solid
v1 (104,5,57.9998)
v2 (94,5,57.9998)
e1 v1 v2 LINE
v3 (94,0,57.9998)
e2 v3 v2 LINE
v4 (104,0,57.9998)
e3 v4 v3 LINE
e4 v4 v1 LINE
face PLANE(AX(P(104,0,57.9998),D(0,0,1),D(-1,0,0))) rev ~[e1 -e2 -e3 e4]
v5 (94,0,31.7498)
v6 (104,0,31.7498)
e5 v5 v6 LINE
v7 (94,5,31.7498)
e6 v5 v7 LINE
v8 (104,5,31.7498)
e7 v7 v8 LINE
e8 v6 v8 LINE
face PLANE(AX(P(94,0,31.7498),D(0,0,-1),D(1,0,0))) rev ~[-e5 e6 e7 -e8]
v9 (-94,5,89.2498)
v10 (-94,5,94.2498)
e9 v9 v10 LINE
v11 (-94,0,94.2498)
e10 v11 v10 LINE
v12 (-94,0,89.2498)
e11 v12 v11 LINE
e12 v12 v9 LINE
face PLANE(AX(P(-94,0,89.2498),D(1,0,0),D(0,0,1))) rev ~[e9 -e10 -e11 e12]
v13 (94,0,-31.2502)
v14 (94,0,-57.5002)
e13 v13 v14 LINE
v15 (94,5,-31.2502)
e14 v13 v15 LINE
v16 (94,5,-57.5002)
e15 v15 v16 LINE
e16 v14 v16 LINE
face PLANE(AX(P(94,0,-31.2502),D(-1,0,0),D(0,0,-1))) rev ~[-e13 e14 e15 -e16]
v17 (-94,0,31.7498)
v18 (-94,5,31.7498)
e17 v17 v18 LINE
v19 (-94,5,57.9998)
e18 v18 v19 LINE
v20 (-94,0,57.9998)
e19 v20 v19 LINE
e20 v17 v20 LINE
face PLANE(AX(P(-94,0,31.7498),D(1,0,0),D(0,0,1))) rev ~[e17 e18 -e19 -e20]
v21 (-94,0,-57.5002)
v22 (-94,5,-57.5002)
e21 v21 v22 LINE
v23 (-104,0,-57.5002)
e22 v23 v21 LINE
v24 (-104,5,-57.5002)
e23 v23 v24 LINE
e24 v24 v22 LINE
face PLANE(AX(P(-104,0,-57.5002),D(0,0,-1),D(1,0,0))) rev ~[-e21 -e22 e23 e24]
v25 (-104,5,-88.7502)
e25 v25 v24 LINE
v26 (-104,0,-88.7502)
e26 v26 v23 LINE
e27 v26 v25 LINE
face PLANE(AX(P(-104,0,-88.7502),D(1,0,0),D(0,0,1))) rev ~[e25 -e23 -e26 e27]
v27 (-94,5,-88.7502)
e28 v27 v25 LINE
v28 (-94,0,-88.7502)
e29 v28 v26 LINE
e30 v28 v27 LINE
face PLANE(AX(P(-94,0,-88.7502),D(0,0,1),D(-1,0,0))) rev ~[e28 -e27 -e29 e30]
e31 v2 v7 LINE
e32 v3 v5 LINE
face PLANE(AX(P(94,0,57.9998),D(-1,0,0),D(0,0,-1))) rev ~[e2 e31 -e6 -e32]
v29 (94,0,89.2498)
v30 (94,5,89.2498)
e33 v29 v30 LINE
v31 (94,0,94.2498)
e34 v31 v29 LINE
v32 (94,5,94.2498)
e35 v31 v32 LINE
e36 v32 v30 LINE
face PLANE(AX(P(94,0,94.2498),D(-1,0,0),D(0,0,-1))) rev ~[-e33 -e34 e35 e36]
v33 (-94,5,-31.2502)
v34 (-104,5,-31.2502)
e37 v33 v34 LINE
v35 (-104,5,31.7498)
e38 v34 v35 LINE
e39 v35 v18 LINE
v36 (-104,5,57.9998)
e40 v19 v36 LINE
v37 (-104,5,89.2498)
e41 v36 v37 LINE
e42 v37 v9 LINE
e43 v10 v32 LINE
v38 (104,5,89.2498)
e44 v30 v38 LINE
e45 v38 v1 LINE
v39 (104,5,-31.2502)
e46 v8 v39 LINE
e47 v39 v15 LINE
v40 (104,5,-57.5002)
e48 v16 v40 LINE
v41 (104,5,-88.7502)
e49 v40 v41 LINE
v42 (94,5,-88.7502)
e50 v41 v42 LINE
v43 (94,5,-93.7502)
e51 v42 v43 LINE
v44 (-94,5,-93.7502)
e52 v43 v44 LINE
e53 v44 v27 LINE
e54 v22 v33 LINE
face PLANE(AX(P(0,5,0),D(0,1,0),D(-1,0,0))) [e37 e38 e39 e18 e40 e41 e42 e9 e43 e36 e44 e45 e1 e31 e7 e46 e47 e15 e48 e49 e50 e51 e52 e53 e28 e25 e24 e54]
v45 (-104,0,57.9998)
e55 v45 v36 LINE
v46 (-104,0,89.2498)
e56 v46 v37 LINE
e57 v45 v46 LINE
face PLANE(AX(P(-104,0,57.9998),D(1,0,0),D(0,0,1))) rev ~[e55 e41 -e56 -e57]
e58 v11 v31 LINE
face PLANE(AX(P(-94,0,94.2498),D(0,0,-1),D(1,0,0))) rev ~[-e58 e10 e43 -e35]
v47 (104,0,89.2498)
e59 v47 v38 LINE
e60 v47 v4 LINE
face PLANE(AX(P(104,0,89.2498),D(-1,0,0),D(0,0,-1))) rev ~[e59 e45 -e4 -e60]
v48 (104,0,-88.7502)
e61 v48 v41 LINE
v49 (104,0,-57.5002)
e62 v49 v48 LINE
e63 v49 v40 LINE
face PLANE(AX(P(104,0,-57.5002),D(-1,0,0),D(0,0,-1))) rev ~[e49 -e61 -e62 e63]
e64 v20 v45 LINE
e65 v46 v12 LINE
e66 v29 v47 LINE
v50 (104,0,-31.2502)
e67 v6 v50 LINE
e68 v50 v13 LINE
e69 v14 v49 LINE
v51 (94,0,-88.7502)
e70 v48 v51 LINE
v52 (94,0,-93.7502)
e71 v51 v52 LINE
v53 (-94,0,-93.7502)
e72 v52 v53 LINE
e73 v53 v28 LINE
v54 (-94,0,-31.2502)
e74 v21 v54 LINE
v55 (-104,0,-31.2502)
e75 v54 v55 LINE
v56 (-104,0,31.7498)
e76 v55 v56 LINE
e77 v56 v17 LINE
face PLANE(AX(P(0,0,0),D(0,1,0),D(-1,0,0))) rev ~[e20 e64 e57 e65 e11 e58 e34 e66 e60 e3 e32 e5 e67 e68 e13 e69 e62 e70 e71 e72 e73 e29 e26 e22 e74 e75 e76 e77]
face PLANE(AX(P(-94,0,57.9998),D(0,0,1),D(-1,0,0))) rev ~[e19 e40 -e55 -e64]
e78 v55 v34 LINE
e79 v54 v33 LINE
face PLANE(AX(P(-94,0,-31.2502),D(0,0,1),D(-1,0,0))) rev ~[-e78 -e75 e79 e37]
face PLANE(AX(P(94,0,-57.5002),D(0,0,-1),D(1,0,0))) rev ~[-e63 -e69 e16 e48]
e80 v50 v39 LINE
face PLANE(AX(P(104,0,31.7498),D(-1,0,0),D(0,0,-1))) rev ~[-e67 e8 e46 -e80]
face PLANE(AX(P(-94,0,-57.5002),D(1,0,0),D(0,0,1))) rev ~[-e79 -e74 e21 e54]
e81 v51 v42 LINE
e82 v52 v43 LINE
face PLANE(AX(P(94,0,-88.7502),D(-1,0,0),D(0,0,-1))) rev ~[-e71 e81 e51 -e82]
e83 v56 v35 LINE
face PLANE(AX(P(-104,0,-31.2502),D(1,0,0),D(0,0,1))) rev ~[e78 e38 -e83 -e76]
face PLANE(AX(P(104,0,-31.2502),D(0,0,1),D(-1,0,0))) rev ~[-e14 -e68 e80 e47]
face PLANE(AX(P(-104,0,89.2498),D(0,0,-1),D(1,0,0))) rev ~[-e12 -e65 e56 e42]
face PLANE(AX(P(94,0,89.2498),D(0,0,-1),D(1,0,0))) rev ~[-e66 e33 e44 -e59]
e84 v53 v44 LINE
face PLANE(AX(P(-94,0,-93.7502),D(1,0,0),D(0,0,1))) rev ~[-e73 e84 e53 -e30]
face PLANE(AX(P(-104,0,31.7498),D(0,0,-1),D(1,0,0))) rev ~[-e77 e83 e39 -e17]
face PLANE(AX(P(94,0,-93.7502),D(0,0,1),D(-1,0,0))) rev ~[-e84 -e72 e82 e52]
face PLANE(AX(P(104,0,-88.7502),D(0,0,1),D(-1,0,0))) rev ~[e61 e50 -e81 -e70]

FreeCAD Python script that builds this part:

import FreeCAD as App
import Part
import Sketcher

V = App.Vector
Q = App.Units.Quantity


def add_polygon(sketch, points):
    """Adds a closed chain of lines whose ends are joined by coincident constraints."""
    first, n = sketch.GeometryCount, len(points)
    for a, b in zip(points, points[1:] + points[:1]):
        sketch.addGeometry(Part.LineSegment(App.Vector(*a, 0), App.Vector(*b, 0)), False)
    for i in range(n):
        sketch.addConstraint(Sketcher.Constraint("Coincident", first + i, 2, first + (i + 1) % n, 1))

doc = App.newDocument("Part")
body = doc.addObject("PartDesign::Body", "Body")

# Sketch on XZ plane
sketch1 = doc.addObject("Sketcher::SketchObject", "Sketch")
body.addObject(sketch1)
sketch1.AttachmentSupport = (doc.XZ_Plane, [""])
sketch1.MapMode = "FlatFace"
add_polygon(sketch1, [(104, -89), (94, -89), (94, -94), (-94, -94), (-94, -89), (-104, -89), (-104, -58), (-94, -58), (-94, -31), (-104, -31), (-104, 32), (-94, 32), (-94, 58), (-104, 58), (-104, 89), (-94, 89), (-94, 94), (94, 94), (94, 89), (104, 89), (104, 58), (94, 58), (94, 32), (104, 32), (104, -31), (94, -31), (94, -58), (104, -58)])  # lines 0-27
sketch1.addConstraint(Sketcher.Constraint("Horizontal", 0))
sketch1.addConstraint(Sketcher.Constraint("Vertical", 1))
sketch1.addConstraint(Sketcher.Constraint("Horizontal", 2))
sketch1.addConstraint(Sketcher.Constraint("Vertical", 3))
sketch1.addConstraint(Sketcher.Constraint("Horizontal", 4))
sketch1.addConstraint(Sketcher.Constraint("Vertical", 5))
sketch1.addConstraint(Sketcher.Constraint("Horizontal", 6))
sketch1.addConstraint(Sketcher.Constraint("Vertical", 7))
sketch1.addConstraint(Sketcher.Constraint("Horizontal", 8))
sketch1.addConstraint(Sketcher.Constraint("Vertical", 9))
sketch1.addConstraint(Sketcher.Constraint("Horizontal", 10))
sketch1.addConstraint(Sketcher.Constraint("Vertical", 11))
sketch1.addConstraint(Sketcher.Constraint("Horizontal", 12))
sketch1.addConstraint(Sketcher.Constraint("Vertical", 13))
sketch1.addConstraint(Sketcher.Constraint("Horizontal", 14))
sketch1.addConstraint(Sketcher.Constraint("Vertical", 15))
sketch1.addConstraint(Sketcher.Constraint("Horizontal", 16))
sketch1.addConstraint(Sketcher.Constraint("Vertical", 17))
sketch1.addConstraint(Sketcher.Constraint("Horizontal", 18))
sketch1.addConstraint(Sketcher.Constraint("Vertical", 19))
sketch1.addConstraint(Sketcher.Constraint("Horizontal", 20))
sketch1.addConstraint(Sketcher.Constraint("Vertical", 21))
sketch1.addConstraint(Sketcher.Constraint("Horizontal", 22))
sketch1.addConstraint(Sketcher.Constraint("Vertical", 23))
sketch1.addConstraint(Sketcher.Constraint("Horizontal", 24))
sketch1.addConstraint(Sketcher.Constraint("Vertical", 25))
sketch1.addConstraint(Sketcher.Constraint("Horizontal", 26))
sketch1.addConstraint(Sketcher.Constraint("Vertical", 27))
sketch1.addConstraint(Sketcher.Constraint("Symmetric", 0, 2, 3, 2, -2))
sketch1.addConstraint(Sketcher.Constraint("Symmetric", 14, 2, 17, 2, -2))
sketch1.addConstraint(Sketcher.Constraint("Symmetric", 12, 2, 19, 2, -2))
sketch1.addConstraint(Sketcher.Constraint("Symmetric", 10, 2, 21, 2, -2))
sketch1.addConstraint(Sketcher.Constraint("Symmetric", 8, 2, 23, 2, -2))
sketch1.addConstraint(Sketcher.Constraint("Symmetric", 6, 2, 25, 2, -2))
sketch1.addConstraint(Sketcher.Constraint("Vertical", 3, 2, 6, 2))
sketch1.addConstraint(Sketcher.Constraint("Vertical", 5, 2, 8, 2))
sketch1.addConstraint(Sketcher.Constraint("Vertical", 7, 2, 10, 2))
sketch1.addConstraint(Sketcher.Constraint("Vertical", 9, 2, 12, 2))
sketch1.addConstraint(Sketcher.Constraint("Vertical", 11, 2, 14, 2))
sketch1.addConstraint(Sketcher.Constraint("Vertical", 23, 2, 26, 2))
sketch1.addConstraint(Sketcher.Constraint("Equal", 7, 11))
sketch1.addConstraint(Sketcher.Constraint("Equal", 5, 13))
sketch1.addConstraint(Sketcher.Constraint("Equal", 3, 15))
sketch1.addConstraint(Sketcher.Constraint("DistanceX", 2, 2, 2, 1, Q("188 mm")))
sketch1.addConstraint(Sketcher.Constraint("DistanceY", 1, 2, 16, 2, Q("188 mm")))
sketch1.addConstraint(Sketcher.Constraint("DistanceX", 0, 2, 0, 1, Q("10 mm")))
sketch1.addConstraint(Sketcher.Constraint("DistanceY", 1, 2, 1, 1, Q("5 mm")))
sketch1.addConstraint(Sketcher.Constraint("DistanceY", 9, 1, 9, 2, Q("63 mm")))
sketch1.addConstraint(Sketcher.Constraint("DistanceY", 5, 1, 5, 2, Q("31.25 mm")))
sketch1.addConstraint(Sketcher.Constraint("DistanceY", 0, 2, -1, 1, Q("88.7502 mm")))
pad1 = doc.addObject("PartDesign::Pad", "Pad")
body.addObject(pad1)
pad1.Profile = sketch1
pad1.Length = 5
pad1.Reversed = True

doc.recompute()
